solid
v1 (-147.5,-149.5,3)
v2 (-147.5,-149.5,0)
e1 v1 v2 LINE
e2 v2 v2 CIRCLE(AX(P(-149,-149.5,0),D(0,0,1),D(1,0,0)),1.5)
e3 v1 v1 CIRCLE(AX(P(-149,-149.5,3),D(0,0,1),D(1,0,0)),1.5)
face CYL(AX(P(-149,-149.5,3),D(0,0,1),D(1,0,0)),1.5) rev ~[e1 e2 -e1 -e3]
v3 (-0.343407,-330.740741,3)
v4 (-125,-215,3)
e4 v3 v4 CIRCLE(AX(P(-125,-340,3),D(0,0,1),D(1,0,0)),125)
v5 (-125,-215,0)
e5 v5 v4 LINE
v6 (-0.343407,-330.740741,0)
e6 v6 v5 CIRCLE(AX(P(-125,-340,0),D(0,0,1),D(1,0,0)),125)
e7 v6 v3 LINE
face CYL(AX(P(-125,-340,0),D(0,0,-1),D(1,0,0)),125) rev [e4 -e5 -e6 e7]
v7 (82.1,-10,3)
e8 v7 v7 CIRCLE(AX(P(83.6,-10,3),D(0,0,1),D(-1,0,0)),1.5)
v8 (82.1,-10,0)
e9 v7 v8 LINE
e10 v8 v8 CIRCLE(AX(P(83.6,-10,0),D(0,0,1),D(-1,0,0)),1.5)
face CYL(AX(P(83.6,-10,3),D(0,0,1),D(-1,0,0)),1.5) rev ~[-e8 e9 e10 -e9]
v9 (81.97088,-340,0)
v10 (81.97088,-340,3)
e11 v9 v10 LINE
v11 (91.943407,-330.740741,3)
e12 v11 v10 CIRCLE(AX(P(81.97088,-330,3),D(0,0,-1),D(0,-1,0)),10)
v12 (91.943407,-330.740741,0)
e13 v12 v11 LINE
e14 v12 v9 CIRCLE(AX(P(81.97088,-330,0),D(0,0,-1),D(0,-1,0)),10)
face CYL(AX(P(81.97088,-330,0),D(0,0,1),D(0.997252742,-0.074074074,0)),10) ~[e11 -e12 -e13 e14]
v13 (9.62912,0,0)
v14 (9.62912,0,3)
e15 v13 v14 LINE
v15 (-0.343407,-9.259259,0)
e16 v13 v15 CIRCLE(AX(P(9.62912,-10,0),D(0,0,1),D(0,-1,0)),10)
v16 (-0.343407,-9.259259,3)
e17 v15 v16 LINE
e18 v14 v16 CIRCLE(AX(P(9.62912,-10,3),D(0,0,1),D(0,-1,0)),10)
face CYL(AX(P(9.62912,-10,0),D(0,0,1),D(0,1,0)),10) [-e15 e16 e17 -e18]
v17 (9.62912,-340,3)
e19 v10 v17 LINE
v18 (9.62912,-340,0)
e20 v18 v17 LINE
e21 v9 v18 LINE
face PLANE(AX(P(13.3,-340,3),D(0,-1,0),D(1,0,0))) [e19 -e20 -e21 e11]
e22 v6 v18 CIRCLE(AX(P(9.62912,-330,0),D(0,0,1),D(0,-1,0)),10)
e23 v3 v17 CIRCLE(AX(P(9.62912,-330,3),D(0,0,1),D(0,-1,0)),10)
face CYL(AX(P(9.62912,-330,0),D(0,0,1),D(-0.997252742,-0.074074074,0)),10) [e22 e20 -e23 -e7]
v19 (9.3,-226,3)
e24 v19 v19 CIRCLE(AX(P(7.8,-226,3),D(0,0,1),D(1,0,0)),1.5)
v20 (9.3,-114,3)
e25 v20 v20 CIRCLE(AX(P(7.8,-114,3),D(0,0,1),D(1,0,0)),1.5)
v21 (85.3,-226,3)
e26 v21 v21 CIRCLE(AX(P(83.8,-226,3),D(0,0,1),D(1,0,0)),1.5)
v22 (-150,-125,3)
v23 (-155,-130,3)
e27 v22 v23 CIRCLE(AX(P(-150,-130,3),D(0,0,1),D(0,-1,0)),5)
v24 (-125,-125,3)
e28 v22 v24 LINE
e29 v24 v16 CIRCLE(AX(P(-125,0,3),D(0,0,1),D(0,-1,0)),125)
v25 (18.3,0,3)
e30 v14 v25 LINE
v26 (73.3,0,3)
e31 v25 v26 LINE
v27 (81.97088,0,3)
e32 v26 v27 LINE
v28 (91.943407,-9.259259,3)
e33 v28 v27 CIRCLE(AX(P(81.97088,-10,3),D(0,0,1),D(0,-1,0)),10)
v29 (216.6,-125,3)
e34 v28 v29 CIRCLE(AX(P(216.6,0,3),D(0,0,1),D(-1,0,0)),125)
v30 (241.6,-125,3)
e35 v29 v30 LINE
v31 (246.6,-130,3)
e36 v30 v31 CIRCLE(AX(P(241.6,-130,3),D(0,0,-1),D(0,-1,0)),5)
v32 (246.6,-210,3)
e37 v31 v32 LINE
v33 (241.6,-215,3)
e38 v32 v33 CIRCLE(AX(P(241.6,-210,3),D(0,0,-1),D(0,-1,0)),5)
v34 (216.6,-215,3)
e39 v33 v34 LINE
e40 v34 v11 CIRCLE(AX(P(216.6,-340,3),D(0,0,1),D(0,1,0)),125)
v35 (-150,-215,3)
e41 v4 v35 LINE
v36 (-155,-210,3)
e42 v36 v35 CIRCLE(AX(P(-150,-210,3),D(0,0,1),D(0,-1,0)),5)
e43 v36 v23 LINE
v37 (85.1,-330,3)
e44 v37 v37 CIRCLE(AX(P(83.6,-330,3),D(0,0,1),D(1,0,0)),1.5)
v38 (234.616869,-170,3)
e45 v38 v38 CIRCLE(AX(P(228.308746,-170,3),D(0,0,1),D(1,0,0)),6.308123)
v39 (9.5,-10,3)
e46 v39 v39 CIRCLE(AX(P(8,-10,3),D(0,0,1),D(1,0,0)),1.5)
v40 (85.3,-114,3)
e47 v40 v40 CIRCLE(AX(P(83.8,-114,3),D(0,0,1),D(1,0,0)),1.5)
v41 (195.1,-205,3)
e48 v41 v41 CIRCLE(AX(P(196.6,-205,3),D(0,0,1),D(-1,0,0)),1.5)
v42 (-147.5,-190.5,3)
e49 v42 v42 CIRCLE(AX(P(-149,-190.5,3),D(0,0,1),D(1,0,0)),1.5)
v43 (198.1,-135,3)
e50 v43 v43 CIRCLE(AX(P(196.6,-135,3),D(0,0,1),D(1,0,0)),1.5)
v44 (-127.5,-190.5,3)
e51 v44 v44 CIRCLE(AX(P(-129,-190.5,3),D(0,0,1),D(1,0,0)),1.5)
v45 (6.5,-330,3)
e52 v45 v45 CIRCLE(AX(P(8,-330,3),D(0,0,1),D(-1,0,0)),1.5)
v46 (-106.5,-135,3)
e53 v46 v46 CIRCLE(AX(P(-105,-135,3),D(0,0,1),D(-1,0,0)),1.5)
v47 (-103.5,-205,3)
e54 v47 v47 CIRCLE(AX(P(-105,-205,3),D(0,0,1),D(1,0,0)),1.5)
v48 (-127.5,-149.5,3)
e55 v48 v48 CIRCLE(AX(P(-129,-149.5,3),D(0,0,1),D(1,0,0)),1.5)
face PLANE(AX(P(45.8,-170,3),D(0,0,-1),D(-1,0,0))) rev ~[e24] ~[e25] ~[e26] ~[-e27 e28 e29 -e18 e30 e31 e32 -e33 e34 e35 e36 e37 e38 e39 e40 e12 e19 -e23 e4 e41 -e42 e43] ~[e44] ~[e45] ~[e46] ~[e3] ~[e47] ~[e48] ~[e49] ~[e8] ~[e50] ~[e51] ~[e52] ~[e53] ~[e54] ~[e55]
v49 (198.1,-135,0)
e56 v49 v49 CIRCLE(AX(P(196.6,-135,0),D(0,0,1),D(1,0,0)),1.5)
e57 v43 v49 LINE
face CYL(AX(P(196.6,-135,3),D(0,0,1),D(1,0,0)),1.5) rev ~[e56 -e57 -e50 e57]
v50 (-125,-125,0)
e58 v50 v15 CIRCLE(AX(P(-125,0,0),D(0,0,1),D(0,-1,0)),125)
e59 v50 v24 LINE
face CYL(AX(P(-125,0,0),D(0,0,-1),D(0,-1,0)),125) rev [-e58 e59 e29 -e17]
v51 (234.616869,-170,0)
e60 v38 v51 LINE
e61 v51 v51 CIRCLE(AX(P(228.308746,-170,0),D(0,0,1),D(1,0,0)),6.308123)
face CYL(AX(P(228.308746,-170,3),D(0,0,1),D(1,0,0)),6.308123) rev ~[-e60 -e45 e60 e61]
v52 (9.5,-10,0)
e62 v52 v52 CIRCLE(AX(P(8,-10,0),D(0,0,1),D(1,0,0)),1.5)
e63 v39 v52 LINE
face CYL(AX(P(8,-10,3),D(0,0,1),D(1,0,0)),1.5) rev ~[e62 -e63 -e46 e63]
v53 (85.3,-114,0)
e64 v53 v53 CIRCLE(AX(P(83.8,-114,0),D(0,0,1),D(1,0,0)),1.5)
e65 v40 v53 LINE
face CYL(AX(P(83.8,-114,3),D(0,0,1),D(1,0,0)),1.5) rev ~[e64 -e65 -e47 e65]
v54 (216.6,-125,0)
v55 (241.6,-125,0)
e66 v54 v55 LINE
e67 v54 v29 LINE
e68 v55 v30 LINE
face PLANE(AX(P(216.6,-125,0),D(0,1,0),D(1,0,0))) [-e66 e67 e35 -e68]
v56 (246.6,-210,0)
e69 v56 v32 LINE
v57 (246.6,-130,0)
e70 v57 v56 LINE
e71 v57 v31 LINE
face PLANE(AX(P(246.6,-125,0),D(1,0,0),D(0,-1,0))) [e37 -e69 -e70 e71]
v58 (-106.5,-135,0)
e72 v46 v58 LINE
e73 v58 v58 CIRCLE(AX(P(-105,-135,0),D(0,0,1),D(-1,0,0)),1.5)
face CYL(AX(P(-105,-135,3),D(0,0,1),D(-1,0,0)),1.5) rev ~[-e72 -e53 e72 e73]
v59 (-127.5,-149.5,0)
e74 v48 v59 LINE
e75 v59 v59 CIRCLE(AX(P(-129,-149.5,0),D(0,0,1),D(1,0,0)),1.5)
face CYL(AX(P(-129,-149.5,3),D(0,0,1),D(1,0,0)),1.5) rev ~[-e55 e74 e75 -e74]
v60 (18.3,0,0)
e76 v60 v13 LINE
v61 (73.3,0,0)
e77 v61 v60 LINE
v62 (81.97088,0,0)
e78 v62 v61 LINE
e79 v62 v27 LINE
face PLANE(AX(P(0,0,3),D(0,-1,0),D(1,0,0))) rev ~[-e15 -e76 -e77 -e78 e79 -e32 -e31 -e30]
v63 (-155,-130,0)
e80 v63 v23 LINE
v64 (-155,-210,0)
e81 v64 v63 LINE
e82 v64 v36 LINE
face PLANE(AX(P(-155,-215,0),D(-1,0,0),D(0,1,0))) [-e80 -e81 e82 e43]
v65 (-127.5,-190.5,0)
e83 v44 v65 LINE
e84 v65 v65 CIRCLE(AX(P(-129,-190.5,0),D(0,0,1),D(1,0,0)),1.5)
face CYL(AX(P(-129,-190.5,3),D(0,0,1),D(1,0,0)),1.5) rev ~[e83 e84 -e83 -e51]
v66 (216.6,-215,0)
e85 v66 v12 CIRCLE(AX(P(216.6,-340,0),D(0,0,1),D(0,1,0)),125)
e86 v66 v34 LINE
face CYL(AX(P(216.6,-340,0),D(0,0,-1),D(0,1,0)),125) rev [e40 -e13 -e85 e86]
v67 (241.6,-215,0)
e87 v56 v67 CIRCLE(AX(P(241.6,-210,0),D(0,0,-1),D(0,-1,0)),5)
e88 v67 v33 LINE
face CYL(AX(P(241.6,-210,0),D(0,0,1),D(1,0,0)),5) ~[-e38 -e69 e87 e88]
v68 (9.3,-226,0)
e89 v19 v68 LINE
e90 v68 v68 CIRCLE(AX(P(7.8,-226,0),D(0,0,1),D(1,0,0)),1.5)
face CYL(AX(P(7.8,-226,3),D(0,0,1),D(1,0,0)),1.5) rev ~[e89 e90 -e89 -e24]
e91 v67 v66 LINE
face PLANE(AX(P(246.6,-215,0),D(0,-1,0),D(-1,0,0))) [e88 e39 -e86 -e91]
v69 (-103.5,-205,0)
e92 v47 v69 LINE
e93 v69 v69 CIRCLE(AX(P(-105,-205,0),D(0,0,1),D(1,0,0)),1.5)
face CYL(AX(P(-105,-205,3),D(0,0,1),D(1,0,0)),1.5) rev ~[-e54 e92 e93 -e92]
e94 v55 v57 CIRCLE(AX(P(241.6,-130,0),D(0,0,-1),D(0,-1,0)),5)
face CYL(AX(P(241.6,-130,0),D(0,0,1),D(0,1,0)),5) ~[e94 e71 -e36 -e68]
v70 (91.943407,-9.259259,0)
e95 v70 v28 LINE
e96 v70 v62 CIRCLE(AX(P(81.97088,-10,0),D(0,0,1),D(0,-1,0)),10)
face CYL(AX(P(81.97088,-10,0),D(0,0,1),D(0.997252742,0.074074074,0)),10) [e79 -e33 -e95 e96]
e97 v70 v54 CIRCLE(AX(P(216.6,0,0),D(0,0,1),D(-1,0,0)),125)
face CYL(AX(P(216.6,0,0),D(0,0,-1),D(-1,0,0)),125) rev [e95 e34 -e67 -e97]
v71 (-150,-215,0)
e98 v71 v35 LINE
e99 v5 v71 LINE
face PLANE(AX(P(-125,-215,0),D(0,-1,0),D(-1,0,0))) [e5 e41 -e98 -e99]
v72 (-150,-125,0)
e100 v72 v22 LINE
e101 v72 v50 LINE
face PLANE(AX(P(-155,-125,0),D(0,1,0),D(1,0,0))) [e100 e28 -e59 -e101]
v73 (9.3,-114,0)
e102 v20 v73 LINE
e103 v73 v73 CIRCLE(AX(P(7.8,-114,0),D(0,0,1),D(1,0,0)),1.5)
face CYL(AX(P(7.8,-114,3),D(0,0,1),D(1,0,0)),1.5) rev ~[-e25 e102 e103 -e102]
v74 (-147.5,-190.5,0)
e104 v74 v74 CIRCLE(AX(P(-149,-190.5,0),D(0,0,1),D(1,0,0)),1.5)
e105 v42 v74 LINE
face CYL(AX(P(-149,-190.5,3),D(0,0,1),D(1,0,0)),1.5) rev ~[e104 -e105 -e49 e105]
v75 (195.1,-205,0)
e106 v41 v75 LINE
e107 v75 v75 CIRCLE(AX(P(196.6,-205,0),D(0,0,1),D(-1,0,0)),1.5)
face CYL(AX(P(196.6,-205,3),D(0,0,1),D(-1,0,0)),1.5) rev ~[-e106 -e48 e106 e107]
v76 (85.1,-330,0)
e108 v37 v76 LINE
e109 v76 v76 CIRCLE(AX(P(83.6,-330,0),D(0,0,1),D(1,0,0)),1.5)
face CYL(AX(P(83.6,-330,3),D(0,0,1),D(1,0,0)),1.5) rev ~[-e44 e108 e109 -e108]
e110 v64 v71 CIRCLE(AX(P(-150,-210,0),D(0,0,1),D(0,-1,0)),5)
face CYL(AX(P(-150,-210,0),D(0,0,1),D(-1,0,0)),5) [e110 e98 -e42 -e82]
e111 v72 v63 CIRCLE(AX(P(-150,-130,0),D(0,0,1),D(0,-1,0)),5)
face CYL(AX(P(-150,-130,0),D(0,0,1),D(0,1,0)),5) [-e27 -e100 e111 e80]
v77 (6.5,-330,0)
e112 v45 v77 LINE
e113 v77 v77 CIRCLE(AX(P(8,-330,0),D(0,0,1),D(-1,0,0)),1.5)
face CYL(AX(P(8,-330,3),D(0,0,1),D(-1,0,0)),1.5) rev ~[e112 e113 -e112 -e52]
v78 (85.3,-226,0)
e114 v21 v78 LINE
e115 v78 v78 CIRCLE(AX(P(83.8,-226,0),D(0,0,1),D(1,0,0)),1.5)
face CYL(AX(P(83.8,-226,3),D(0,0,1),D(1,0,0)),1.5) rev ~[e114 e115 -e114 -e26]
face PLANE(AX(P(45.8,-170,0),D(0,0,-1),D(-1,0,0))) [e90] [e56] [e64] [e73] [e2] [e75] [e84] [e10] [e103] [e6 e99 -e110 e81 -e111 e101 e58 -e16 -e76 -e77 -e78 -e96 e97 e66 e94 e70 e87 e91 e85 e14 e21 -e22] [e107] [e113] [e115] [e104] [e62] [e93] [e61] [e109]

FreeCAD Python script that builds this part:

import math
import FreeCAD as App
import Part
import Sketcher
Q = App.Units.Quantity


def edges_at(feature, points):
    """Names of the edges that pass closest to the given points."""
    edges = feature.Shape.Edges
    near = lambda p: min(range(len(edges)), key=lambda i: edges[i].distToShape(Part.Vertex(*p))[0])
    return sorted({f"Edge{near(p) + 1}" for p in points})

doc = App.newDocument("Part")
body = doc.addObject("PartDesign::Body", "Body")

# Sketch on XY plane
sketch1 = body.newObject("Sketcher::SketchObject", "Sketch")
sketch1.AttachmentSupport = (doc.getObject("XY_Plane"), [""])
sketch1.MapMode = "FlatFace"
sketch1.addGeometry(Part.LineSegment(App.Vector(0, 55, 0), App.Vector(0, 25, 0)), False)
sketch1.addGeometry(Part.LineSegment(App.Vector(0, 25, 0), App.Vector(-97, 25, 0)), False)
sketch1.addGeometry(Part.LineSegment(App.Vector(-97, 25, 0), App.Vector(-97, 0, 0)), False)
sketch1.addGeometry(Part.LineSegment(App.Vector(-97, 0, 0), App.Vector(0, 0, 0)), False)
sketch1.addGeometry(Part.ArcOfCircle(Part.Circle(App.Vector(-125, 0, 0), App.Vector(0, 0, 1), 125), math.radians(-90), math.radians(0)), False)
sketch1.addGeometry(Part.LineSegment(App.Vector(-125, -125, 0), App.Vector(-155, -125, 0)), False)
sketch1.addGeometry(Part.LineSegment(App.Vector(-155, -125, 0), App.Vector(-155, -215, 0)), False)
sketch1.addGeometry(Part.LineSegment(App.Vector(-155, -215, 0), App.Vector(-125, -215, 0)), False)
sketch1.addGeometry(Part.ArcOfCircle(Part.Circle(App.Vector(-125, -340, 0), App.Vector(0, 0, 1), 125), math.radians(0), math.radians(90)), False)
sketch1.addGeometry(Part.LineSegment(App.Vector(0, -340, 0), App.Vector(-97, -340, 0)), False)
sketch1.addGeometry(Part.LineSegment(App.Vector(-97, -340, 0), App.Vector(-97, -365, 0)), False)
sketch1.addGeometry(Part.LineSegment(App.Vector(-97, -365, 0), App.Vector(0, -365, 0)), False)
sketch1.addGeometry(Part.LineSegment(App.Vector(0, -365, 0), App.Vector(0, -395, 0)), False)
sketch1.addGeometry(Part.LineSegment(App.Vector(0, -395, 0), App.Vector(92, -395, 0)), False)
sketch1.addGeometry(Part.LineSegment(App.Vector(92, -395, 0), App.Vector(92, -365, 0)), False)
sketch1.addGeometry(Part.LineSegment(App.Vector(92, -365, 0), App.Vector(188, -365, 0)), False)
sketch1.addGeometry(Part.LineSegment(App.Vector(188, -365, 0), App.Vector(188, -340, 0)), False)
sketch1.addGeometry(Part.LineSegment(App.Vector(188, -340, 0), App.Vector(92, -340, 0)), False)
sketch1.addGeometry(Part.ArcOfCircle(Part.Circle(App.Vector(217, -340, 0), App.Vector(0, 0, 1), 125), math.radians(90), math.radians(180)), False)
sketch1.addGeometry(Part.LineSegment(App.Vector(217, -215, 0), App.Vector(247, -215, 0)), False)
sketch1.addGeometry(Part.LineSegment(App.Vector(247, -215, 0), App.Vector(247, -125, 0)), False)
sketch1.addGeometry(Part.LineSegment(App.Vector(247, -125, 0), App.Vector(217, -125, 0)), False)
sketch1.addGeometry(Part.ArcOfCircle(Part.Circle(App.Vector(217, 0, 0), App.Vector(0, 0, 1), 125), math.radians(-180), math.radians(-90)), False)
sketch1.addGeometry(Part.LineSegment(App.Vector(92, 0, 0), App.Vector(188, 0, 0)), False)
sketch1.addGeometry(Part.LineSegment(App.Vector(188, 0, 0), App.Vector(188, 25, 0)), False)
sketch1.addGeometry(Part.LineSegment(App.Vector(188, 25, 0), App.Vector(92, 25, 0)), False)
sketch1.addGeometry(Part.LineSegment(App.Vector(92, 25, 0), App.Vector(92, 55, 0)), False)
sketch1.addGeometry(Part.LineSegment(App.Vector(92, 55, 0), App.Vector(0, 55, 0)), False)
sketch1.addConstraint(Sketcher.Constraint("Coincident", 0, 2, 1, 1))
sketch1.addConstraint(Sketcher.Constraint("Coincident", 1, 2, 2, 1))
sketch1.addConstraint(Sketcher.Constraint("Coincident", 2, 2, 3, 1))
sketch1.addConstraint(Sketcher.Constraint("Coincident", 3, 2, 4, 2))
sketch1.addConstraint(Sketcher.Constraint("Tangent", 4, 1, 5, 1))
sketch1.addConstraint(Sketcher.Constraint("Coincident", 5, 2, 6, 1))
sketch1.addConstraint(Sketcher.Constraint("Coincident", 6, 2, 7, 1))
sketch1.addConstraint(Sketcher.Constraint("Tangent", 7, 2, 8, 2))
sketch1.addConstraint(Sketcher.Constraint("Coincident", 8, 1, 9, 1))
sketch1.addConstraint(Sketcher.Constraint("Coincident", 9, 2, 10, 1))
sketch1.addConstraint(Sketcher.Constraint("Coincident", 10, 2, 11, 1))
sketch1.addConstraint(Sketcher.Constraint("Coincident", 11, 2, 12, 1))
sketch1.addConstraint(Sketcher.Constraint("Coincident", 12, 2, 13, 1))
sketch1.addConstraint(Sketcher.Constraint("Coincident", 13, 2, 14, 1))
sketch1.addConstraint(Sketcher.Constraint("Coincident", 14, 2, 15, 1))
sketch1.addConstraint(Sketcher.Constraint("Coincident", 15, 2, 16, 1))
sketch1.addConstraint(Sketcher.Constraint("Coincident", 16, 2, 17, 1))
sketch1.addConstraint(Sketcher.Constraint("Coincident", 17, 2, 18, 2))
sketch1.addConstraint(Sketcher.Constraint("Tangent", 18, 1, 19, 1))
sketch1.addConstraint(Sketcher.Constraint("Coincident", 19, 2, 20, 1))
sketch1.addConstraint(Sketcher.Constraint("Coincident", 20, 2, 21, 1))
sketch1.addConstraint(Sketcher.Constraint("Tangent", 21, 2, 22, 2))
sketch1.addConstraint(Sketcher.Constraint("Coincident", 22, 1, 23, 1))
sketch1.addConstraint(Sketcher.Constraint("Coincident", 23, 2, 24, 1))
sketch1.addConstraint(Sketcher.Constraint("Coincident", 24, 2, 25, 1))
sketch1.addConstraint(Sketcher.Constraint("Coincident", 25, 2, 26, 1))
sketch1.addConstraint(Sketcher.Constraint("Coincident", 26, 2, 27, 1))
sketch1.addConstraint(Sketcher.Constraint("Coincident", 27, 2, 0, 1))
sketch1.addConstraint(Sketcher.Constraint("Vertical", 0))
sketch1.addConstraint(Sketcher.Constraint("Horizontal", 1))
sketch1.addConstraint(Sketcher.Constraint("Vertical", 2))
sketch1.addConstraint(Sketcher.Constraint("Horizontal", 3))
sketch1.addConstraint(Sketcher.Constraint("Horizontal", 5))
sketch1.addConstraint(Sketcher.Constraint("Vertical", 6))
sketch1.addConstraint(Sketcher.Constraint("Horizontal", 7))
sketch1.addConstraint(Sketcher.Constraint("Horizontal", 9))
sketch1.addConstraint(Sketcher.Constraint("Vertical", 10))
sketch1.addConstraint(Sketcher.Constraint("Horizontal", 11))
sketch1.addConstraint(Sketcher.Constraint("Vertical", 12))
sketch1.addConstraint(Sketcher.Constraint("Horizontal", 13))
sketch1.addConstraint(Sketcher.Constraint("Vertical", 14))
sketch1.addConstraint(Sketcher.Constraint("Horizontal", 15))
sketch1.addConstraint(Sketcher.Constraint("Vertical", 16))
sketch1.addConstraint(Sketcher.Constraint("Horizontal", 17))
sketch1.addConstraint(Sketcher.Constraint("Horizontal", 19))
sketch1.addConstraint(Sketcher.Constraint("Vertical", 20))
sketch1.addConstraint(Sketcher.Constraint("Horizontal", 21))
sketch1.addConstraint(Sketcher.Constraint("Horizontal", 23))
sketch1.addConstraint(Sketcher.Constraint("Vertical", 24))
sketch1.addConstraint(Sketcher.Constraint("Horizontal", 25))
sketch1.addConstraint(Sketcher.Constraint("Vertical", 26))
sketch1.addConstraint(Sketcher.Constraint("Horizontal", 27))
sketch1.addConstraint(Sketcher.Constraint("Coincident", 3, 2, -1, 1))
sketch1.addConstraint(Sketcher.Constraint("Equal", 4, 8))
sketch1.addConstraint(Sketcher.Constraint("Equal", 8, 18))
sketch1.addConstraint(Sketcher.Constraint("Equal", 18, 22))
sketch1.addConstraint(Sketcher.Constraint("PointOnObject", 4, 3, -1))
sketch1.addConstraint(Sketcher.Constraint("PointOnObject", 22, 3, -1))
sketch1.addConstraint(Sketcher.Constraint("PointOnObject", 0, 2, -2))
sketch1.addConstraint(Sketcher.Constraint("PointOnObject", 8, 1, -2))
sketch1.addConstraint(Sketcher.Constraint("PointOnObject", 11, 2, -2))
sketch1.addConstraint(Sketcher.Constraint("PointOnObject", 22, 1, -1))
sketch1.addConstraint(Sketcher.Constraint("Horizontal", 8, 3, 18, 3))
sketch1.addConstraint(Sketcher.Constraint("Horizontal", 18, 3, 8, 1))
sketch1.addConstraint(Sketcher.Constraint("Horizontal", 11, 2, 14, 2))
sketch1.addConstraint(Sketcher.Constraint("Horizontal", 9, 2, 16, 2))
sketch1.addConstraint(Sketcher.Constraint("Horizontal", 1, 2, 24, 2))
sketch1.addConstraint(Sketcher.Constraint("Vertical", 18, 3, 22, 3))
sketch1.addConstraint(Sketcher.Constraint("Vertical", 2, 2, 9, 2))
sketch1.addConstraint(Sketcher.Constraint("Vertical", 14, 2, 17, 2))
sketch1.addConstraint(Sketcher.Constraint("Vertical", 16, 2, 23, 2))
sketch1.addConstraint(Sketcher.Constraint("Vertical", 22, 1, 25, 2))
sketch1.addConstraint(Sketcher.Constraint("Equal", 11, 15))
sketch1.addConstraint(Sketcher.Constraint("Equal", 7, 19))
sketch1.addConstraint(Sketcher.Constraint("Equal", 21, 0))
sketch1.addConstraint(Sketcher.Constraint("Equal", 2, 10))
sketch1.addConstraint(Sketcher.Constraint("Equal", 0, 12))
sketch1.addConstraint(Sketcher.Constraint("Radius", 4, Q("125 mm")))
sketch1.addConstraint(Sketcher.Constraint("DistanceX", 5, 2, 5, 1, Q("30 mm")))
sketch1.addConstraint(Sketcher.Constraint("DistanceY", 2, 2, 2, 1, Q("25 mm")))
sketch1.addConstraint(Sketcher.Constraint("DistanceY", 6, 2, 6, 1, Q("90 mm")))
sketch1.addConstraint(Sketcher.Constraint("DistanceX", 13, 1, 13, 2, Q("91.6 mm")))
sketch1.addConstraint(Sketcher.Constraint("DistanceX", 1, 2, 1, 1, Q("96.583124 mm")))
pad1 = body.newObject("PartDesign::Pad", "Pad")
pad1.Profile = sketch1
pad1.Length = 3

# Sketch on XY plane
sketch2 = body.newObject("Sketcher::SketchObject", "Sketch001")
sketch2.AttachmentSupport = (doc.getObject("XY_Plane"), [""])
sketch2.MapMode = "FlatFace"
sketch2.AttachmentOffset = App.Placement(App.Vector(0, 0, 3), App.Rotation())
sketch2.addGeometry(Part.Circle(App.Vector(-90.6, 20, 0), App.Vector(0, 0, 1), 1.5), False)
sketch2.addGeometry(Part.Circle(App.Vector(-90.6, 5, 0), App.Vector(0, 0, 1), 1.5), False)
sketch2.addGeometry(Part.Circle(App.Vector(-90.6, -345, 0), App.Vector(0, 0, 1), 1.5), False)
sketch2.addGeometry(Part.Circle(App.Vector(-90.6, -360, 0), App.Vector(0, 0, 1), 1.5), False)
sketch2.addGeometry(Part.Circle(App.Vector(182.2, -360, 0), App.Vector(0, 0, 1), 1.5), False)
sketch2.addGeometry(Part.Circle(App.Vector(182.2, -345, 0), App.Vector(0, 0, 1), 1.5), False)
sketch2.addGeometry(Part.Circle(App.Vector(182.2, 5, 0), App.Vector(0, 0, 1), 1.5), False)
sketch2.addGeometry(Part.Circle(App.Vector(182.2, 20, 0), App.Vector(0, 0, 1), 1.5), False)
sketch2.addConstraint(Sketcher.Constraint("Equal", 0, 1))
sketch2.addConstraint(Sketcher.Constraint("Equal", 1, 2))
sketch2.addConstraint(Sketcher.Constraint("Equal", 2, 3))
sketch2.addConstraint(Sketcher.Constraint("Equal", 3, 4))
sketch2.addConstraint(Sketcher.Constraint("Equal", 4, 5))
sketch2.addConstraint(Sketcher.Constraint("Equal", 5, 6))
sketch2.addConstraint(Sketcher.Constraint("Equal", 6, 7))
sketch2.addConstraint(Sketcher.Constraint("Horizontal", 3, 3, 4, 3))
sketch2.addConstraint(Sketcher.Constraint("Horizontal", 2, 3, 5, 3))
sketch2.addConstraint(Sketcher.Constraint("Horizontal", 1, 3, 6, 3))
sketch2.addConstraint(Sketcher.Constraint("Horizontal", 0, 3, 7, 3))
sketch2.addConstraint(Sketcher.Constraint("Vertical", 0, 3, 1, 3))
sketch2.addConstraint(Sketcher.Constraint("Vertical", 1, 3, 2, 3))
sketch2.addConstraint(Sketcher.Constraint("Vertical", 2, 3, 3, 3))
sketch2.addConstraint(Sketcher.Constraint("Vertical", 4, 3, 5, 3))
sketch2.addConstraint(Sketcher.Constraint("Vertical", 5, 3, 6, 3))
sketch2.addConstraint(Sketcher.Constraint("Vertical", 6, 3, 7, 3))
sketch2.addConstraint(Sketcher.Constraint("Diameter", 0, Q("3 mm")))
sketch2.addConstraint(Sketcher.Constraint("DistanceY", -1, 1, 0, 3, Q("20 mm")))
sketch2.addConstraint(Sketcher.Constraint("DistanceY", -1, 1, 1, 3, Q("5 mm")))
sketch2.addConstraint(Sketcher.Constraint("DistanceY", 2, 3, -1, 1, Q("345 mm")))
sketch2.addConstraint(Sketcher.Constraint("DistanceY", 3, 3, -1, 1, Q("360 mm")))
sketch2.addConstraint(Sketcher.Constraint("DistanceX", 0, 3, -1, 1, Q("90.583124 mm")))
sketch2.addConstraint(Sketcher.Constraint("DistanceX", -1, 1, 4, 3, Q("182.183124 mm")))
pocket1 = body.newObject("PartDesign::Pocket", "Pocket")
pocket1.Profile = sketch2
pocket1.Length = 10

# Sketch on XY plane
sketch3 = body.newObject("Sketcher::SketchObject", "Sketch002")
sketch3.AttachmentSupport = (doc.getObject("XY_Plane"), [""])
sketch3.MapMode = "FlatFace"
sketch3.AttachmentOffset = App.Placement(App.Vector(0, 0, 3), App.Rotation())
sketch3.addGeometry(Part.Circle(App.Vector(8, -10, 0), App.Vector(0, 0, 1), 1.5), False)
sketch3.addGeometry(Part.Circle(App.Vector(83.6, -10, 0), App.Vector(0, 0, 1), 1.5), False)
sketch3.addGeometry(Part.Circle(App.Vector(83.6, -330, 0), App.Vector(0, 0, 1), 1.5), False)
sketch3.addGeometry(Part.Circle(App.Vector(8, -330, 0), App.Vector(0, 0, 1), 1.5), False)
sketch3.addGeometry(Part.Circle(App.Vector(196.6, -135, 0), App.Vector(0, 0, 1), 1.5), False)
sketch3.addGeometry(Part.Circle(App.Vector(196.6, -205, 0), App.Vector(0, 0, 1), 1.5), False)
sketch3.addGeometry(Part.Circle(App.Vector(-105, -205, 0), App.Vector(0, 0, 1), 1.5), False)
sketch3.addGeometry(Part.Circle(App.Vector(-105, -135, 0), App.Vector(0, 0, 1), 1.5), False)
sketch3.addConstraint(Sketcher.Constraint("Equal", 0, 1))
sketch3.addConstraint(Sketcher.Constraint("Equal", 1, 2))
sketch3.addConstraint(Sketcher.Constraint("Equal", 2, 3))
sketch3.addConstraint(Sketcher.Constraint("Equal", 3, 4))
sketch3.addConstraint(Sketcher.Constraint("Equal", 4, 5))
sketch3.addConstraint(Sketcher.Constraint("Equal", 5, 6))
sketch3.addConstraint(Sketcher.Constraint("Equal", 6, 7))
sketch3.addConstraint(Sketcher.Constraint("Horizontal", 0, 3, 1, 3))
sketch3.addConstraint(Sketcher.Constraint("Horizontal", 2, 3, 3, 3))
sketch3.addConstraint(Sketcher.Constraint("Horizontal", 5, 3, 6, 3))
sketch3.addConstraint(Sketcher.Constraint("Horizontal", 4, 3, 7, 3))
sketch3.addConstraint(Sketcher.Constraint("Vertical", 1, 3, 2, 3))
sketch3.addConstraint(Sketcher.Constraint("Vertical", 0, 3, 3, 3))
sketch3.addConstraint(Sketcher.Constraint("Vertical", 4, 3, 5, 3))
sketch3.addConstraint(Sketcher.Constraint("Vertical", 6, 3, 7, 3))
sketch3.addConstraint(Sketcher.Constraint("Diameter", 0, Q("3 mm")))
sketch3.addConstraint(Sketcher.Constraint("DistanceX", -1, 1, 0, 3, Q("8 mm")))
sketch3.addConstraint(Sketcher.Constraint("DistanceY", 0, 3, -1, 1, Q("10 mm")))
sketch3.addConstraint(Sketcher.Constraint("DistanceY", 2, 3, -1, 1, Q("330 mm")))
sketch3.addConstraint(Sketcher.Constraint("DistanceY", 4, 3, -1, 1, Q("135 mm")))
sketch3.addConstraint(Sketcher.Constraint("DistanceY", 5, 3, -1, 1, Q("205 mm")))
sketch3.addConstraint(Sketcher.Constraint("DistanceX", 6, 3, -1, 1, Q("105 mm")))
sketch3.addConstraint(Sketcher.Constraint("DistanceX", 1, 3, 4, 3, Q("113 mm")))
sketch3.addConstraint(Sketcher.Constraint("DistanceX", -1, 1, 1, 3, Q("83.6 mm")))
pocket2 = body.newObject("PartDesign::Pocket", "Pocket001")
pocket2.Profile = sketch3
pocket2.Length = 10
doc.recompute()

fillet = body.newObject("PartDesign::Fillet", "Fillet")
fillet.Base = (pocket2, edges_at(pocket2, [
    (-96.583, 0, 1.5),
    (-96.583, 25, 1.5),
    (0, 55, 1.5),
    (91.6, 55, 1.5),
    (188.183, 25, 1.5),
    (188.183, 0, 1.5),
    (246.6, -125, 1.5),
    (246.6, -215, 1.5),
    (188.183, -340, 1.5),
    (188.183, -365, 1.5),
    (91.6, -395, 1.5),
    (0, -395, 1.5),
    (-96.583, -365, 1.5),
    (-96.583, -340, 1.5),
    (-155, -215, 1.5),
    (-155, -125, 1.5),
]))
fillet.Radius = 5

# Sketch on XY plane
sketch4 = body.newObject("Sketcher::SketchObject", "Sketch003")
sketch4.AttachmentSupport = (doc.getObject("XY_Plane"), [""])
sketch4.MapMode = "FlatFace"
sketch4.AttachmentOffset = App.Placement(App.Vector(0, 0, 3), App.Rotation())
sketch4.addGeometry(Part.LineSegment(App.Vector(-117, 25, 0), App.Vector(-117, 0, 0)), False)
sketch4.addGeometry(Part.LineSegment(App.Vector(-117, 0, 0), App.Vector(0, 0, 0)), False)
sketch4.addGeometry(Part.LineSegment(App.Vector(0, 0, 0), App.Vector(0, 25, 0)), False)
sketch4.addGeometry(Part.LineSegment(App.Vector(0, 25, 0), App.Vector(-117, 25, 0)), False)
sketch4.addGeometry(Part.LineSegment(App.Vector(92, 25, 0), App.Vector(92, 0, 0)), False)
sketch4.addGeometry(Part.LineSegment(App.Vector(92, 0, 0), App.Vector(216, 0, 0)), False)
sketch4.addGeometry(Part.LineSegment(App.Vector(216, 0, 0), App.Vector(216, 25, 0)), False)
sketch4.addGeometry(Part.LineSegment(App.Vector(216, 25, 0), App.Vector(92, 25, 0)), False)
sketch4.addGeometry(Part.LineSegment(App.Vector(-98, -340, 0), App.Vector(-98, -365, 0)), False)
sketch4.addGeometry(Part.LineSegment(App.Vector(-98, -365, 0), App.Vector(0, -365, 0)), False)
sketch4.addGeometry(Part.LineSegment(App.Vector(0, -365, 0), App.Vector(0, -340, 0)), False)
sketch4.addGeometry(Part.LineSegment(App.Vector(0, -340, 0), App.Vector(-98, -340, 0)), False)
sketch4.addGeometry(Part.LineSegment(App.Vector(92, -340, 0), App.Vector(92, -365, 0)), False)
sketch4.addGeometry(Part.LineSegment(App.Vector(92, -365, 0), App.Vector(209, -365, 0)), False)
sketch4.addGeometry(Part.LineSegment(App.Vector(209, -365, 0), App.Vector(209, -340, 0)), False)
sketch4.addGeometry(Part.LineSegment(App.Vector(209, -340, 0), App.Vector(92, -340, 0)), False)
sketch4.addConstraint(Sketcher.Constraint("Coincident", 0, 2, 1, 1))
sketch4.addConstraint(Sketcher.Constraint("Coincident", 1, 2, 2, 1))
sketch4.addConstraint(Sketcher.Constraint("Coincident", 2, 2, 3, 1))
sketch4.addConstraint(Sketcher.Constraint("Coincident", 3, 2, 0, 1))
sketch4.addConstraint(Sketcher.Constraint("Coincident", 4, 2, 5, 1))
sketch4.addConstraint(Sketcher.Constraint("Coincident", 5, 2, 6, 1))
sketch4.addConstraint(Sketcher.Constraint("Coincident", 6, 2, 7, 1))
sketch4.addConstraint(Sketcher.Constraint("Coincident", 7, 2, 4, 1))
sketch4.addConstraint(Sketcher.Constraint("Coincident", 8, 2, 9, 1))
sketch4.addConstraint(Sketcher.Constraint("Coincident", 9, 2, 10, 1))
sketch4.addConstraint(Sketcher.Constraint("Coincident", 10, 2, 11, 1))
sketch4.addConstraint(Sketcher.Constraint("Coincident", 11, 2, 8, 1))
sketch4.addConstraint(Sketcher.Constraint("Coincident", 12, 2, 13, 1))
sketch4.addConstraint(Sketcher.Constraint("Coincident", 13, 2, 14, 1))
sketch4.addConstraint(Sketcher.Constraint("Coincident", 14, 2, 15, 1))
sketch4.addConstraint(Sketcher.Constraint("Coincident", 15, 2, 12, 1))
sketch4.addConstraint(Sketcher.Constraint("Vertical", 0))
sketch4.addConstraint(Sketcher.Constraint("Horizontal", 1))
sketch4.addConstraint(Sketcher.Constraint("Vertical", 2))
sketch4.addConstraint(Sketcher.Constraint("Horizontal", 3))
sketch4.addConstraint(Sketcher.Constraint("Vertical", 4))
sketch4.addConstraint(Sketcher.Constraint("Horizontal", 5))
sketch4.addConstraint(Sketcher.Constraint("Vertical", 6))
sketch4.addConstraint(Sketcher.Constraint("Horizontal", 7))
sketch4.addConstraint(Sketcher.Constraint("Vertical", 8))
sketch4.addConstraint(Sketcher.Constraint("Horizontal", 9))
sketch4.addConstraint(Sketcher.Constraint("Vertical", 10))
sketch4.addConstraint(Sketcher.Constraint("Horizontal", 11))
sketch4.addConstraint(Sketcher.Constraint("Vertical", 12))
sketch4.addConstraint(Sketcher.Constraint("Horizontal", 13))
sketch4.addConstraint(Sketcher.Constraint("Vertical", 14))
sketch4.addConstraint(Sketcher.Constraint("Horizontal", 15))
sketch4.addConstraint(Sketcher.Constraint("Coincident", 1, 2, -1, 1))
sketch4.addConstraint(Sketcher.Constraint("PointOnObject", 4, 2, -1))
sketch4.addConstraint(Sketcher.Constraint("PointOnObject", 9, 2, -2))
sketch4.addConstraint(Sketcher.Constraint("Horizontal", 3, 2, 6, 2))
sketch4.addConstraint(Sketcher.Constraint("Horizontal", 9, 2, 12, 2))
sketch4.addConstraint(Sketcher.Constraint("Horizontal", 11, 2, 14, 2))
sketch4.addConstraint(Sketcher.Constraint("Vertical", 7, 2, 12, 2))
sketch4.addConstraint(Sketcher.Constraint("Equal", 6, 8))
sketch4.addConstraint(Sketcher.Constraint("DistanceY", 0, 2, 0, 1, Q("25 mm")))
sketch4.addConstraint(Sketcher.Constraint("DistanceY", 8, 2, -1, 1, Q("365 mm")))
sketch4.addConstraint(Sketcher.Constraint("DistanceX", -1, 1, 4, 2, Q("91.6 mm")))
sketch4.addConstraint(Sketcher.Constraint("DistanceX", 5, 1, 5, 2, Q("124.07359 mm")))
sketch4.addConstraint(Sketcher.Constraint("DistanceX", 9, 1, 9, 2, Q("98.220869 mm")))
sketch4.addConstraint(Sketcher.Constraint("DistanceX", 13, 1, 13, 2, Q("117.634329 mm")))
sketch4.addConstraint(Sketcher.Constraint("DistanceX", 1, 1, 1, 2, Q("116.747997 mm")))
pocket3 = body.newObject("PartDesign::Pocket", "Pocket002")
pocket3.Profile = sketch4
pocket3.Length = 10

# Sketch on XY plane
sketch5 = body.newObject("Sketcher::SketchObject", "Sketch004")
sketch5.AttachmentSupport = (doc.getObject("XY_Plane"), [""])
sketch5.MapMode = "FlatFace"
sketch5.AttachmentOffset = App.Placement(App.Vector(0, 0, 3), App.Rotation())
sketch5.addGeometry(Part.LineSegment(App.Vector(13, 110, 0), App.Vector(13, 0, 0)), False)
sketch5.addGeometry(Part.LineSegment(App.Vector(13, 0, 0), App.Vector(78, 0, 0)), False)
sketch5.addGeometry(Part.LineSegment(App.Vector(78, 0, 0), App.Vector(78, 110, 0)), False)
sketch5.addGeometry(Part.LineSegment(App.Vector(78, 110, 0), App.Vector(13, 110, 0)), False)
sketch5.addGeometry(Part.LineSegment(App.Vector(13, -340, 0), App.Vector(13, -450, 0)), False)
sketch5.addGeometry(Part.LineSegment(App.Vector(13, -450, 0), App.Vector(78, -450, 0)), False)
sketch5.addGeometry(Part.LineSegment(App.Vector(78, -450, 0), App.Vector(78, -340, 0)), False)
sketch5.addGeometry(Part.LineSegment(App.Vector(78, -340, 0), App.Vector(13, -340, 0)), False)
sketch5.addConstraint(Sketcher.Constraint("Coincident", 0, 2, 1, 1))
sketch5.addConstraint(Sketcher.Constraint("Coincident", 1, 2, 2, 1))
sketch5.addConstraint(Sketcher.Constraint("Coincident", 2, 2, 3, 1))
sketch5.addConstraint(Sketcher.Constraint("Coincident", 3, 2, 0, 1))
sketch5.addConstraint(Sketcher.Constraint("Coincident", 4, 2, 5, 1))
sketch5.addConstraint(Sketcher.Constraint("Coincident", 5, 2, 6, 1))
sketch5.addConstraint(Sketcher.Constraint("Coincident", 6, 2, 7, 1))
sketch5.addConstraint(Sketcher.Constraint("Coincident", 7, 2, 4, 1))
sketch5.addConstraint(Sketcher.Constraint("Vertical", 0))
sketch5.addConstraint(Sketcher.Constraint("Horizontal", 1))
sketch5.addConstraint(Sketcher.Constraint("Vertical", 2))
sketch5.addConstraint(Sketcher.Constraint("Horizontal", 3))
sketch5.addConstraint(Sketcher.Constraint("Vertical", 4))
sketch5.addConstraint(Sketcher.Constraint("Horizontal", 5))
sketch5.addConstraint(Sketcher.Constraint("Vertical", 6))
sketch5.addConstraint(Sketcher.Constraint("Horizontal", 7))
sketch5.addConstraint(Sketcher.Constraint("PointOnObject", 0, 2, -1))
sketch5.addConstraint(Sketcher.Constraint("Vertical", 3, 2, 4, 2))
sketch5.addConstraint(Sketcher.Constraint("Vertical", 2, 2, 5, 2))
sketch5.addConstraint(Sketcher.Constraint("Equal", 2, 4))
sketch5.addConstraint(Sketcher.Constraint("DistanceX", 1, 1, 1, 2, Q("65 mm")))
sketch5.addConstraint(Sketcher.Constraint("DistanceY", 0, 2, 0, 1, Q("110 mm")))
sketch5.addConstraint(Sketcher.Constraint("DistanceY", 4, 2, -1, 1, Q("450 mm")))
sketch5.addConstraint(Sketcher.Constraint("DistanceX", -1, 1, 0, 2, Q("13.3 mm")))
pocket4 = body.newObject("PartDesign::Pocket", "Pocket003")
pocket4.Profile = sketch5
pocket4.Length = 10
doc.recompute()

fillet2 = body.newObject("PartDesign::Fillet", "Fillet001")
fillet2.Base = (pocket4, edges_at(pocket4, [
    (13.3, 55, 1.5),
    (78.3, 55, 1.5),
    (78.3, -395, 1.5),
    (13.3, -395, 1.5),
]))
fillet2.Radius = 5
doc.recompute()

fillet3 = body.newObject("PartDesign::Fillet", "Fillet002")
fillet3.Base = (fillet2, edges_at(fillet2, [
    (13.3, 0, 1.5),
    (78.3, 0, 1.5),
    (78.3, -340, 1.5),
    (13.3, -340, 1.5),
]))
fillet3.Radius = 5

# Sketch on XY plane
sketch6 = body.newObject("Sketcher::SketchObject", "Sketch005")
sketch6.AttachmentSupport = (doc.getObject("XY_Plane"), [""])
sketch6.MapMode = "FlatFace"
sketch6.AttachmentOffset = App.Placement(App.Vector(0, 0, 3), App.Rotation())
sketch6.addGeometry(Part.Circle(App.Vector(228, -170, 0), App.Vector(0, 0, 1), 6), False)
sketch6.addConstraint(Sketcher.Constraint("DistanceY", 0, 3, -1, 1, Q("170 mm")))
sketch6.addConstraint(Sketcher.Constraint("Diameter", 0, Q("12.616246 mm")))
sketch6.addConstraint(Sketcher.Constraint("DistanceX", -1, 1, 0, 3, Q("228.308746 mm")))
pocket5 = body.newObject("PartDesign::Pocket", "Pocket004")
pocket5.Profile = sketch6
pocket5.Length = 10

# Sketch on XY plane
sketch7 = body.newObject("Sketcher::SketchObject", "Sketch006")
sketch7.AttachmentSupport = (doc.getObject("XY_Plane"), [""])
sketch7.MapMode = "FlatFace"
sketch7.AttachmentOffset = App.Placement(App.Vector(0, 0, 3), App.Rotation())
sketch7.addGeometry(Part.Circle(App.Vector(-149, -149.5, 0), App.Vector(0, 0, 1), 1.5), False)
sketch7.addGeometry(Part.Circle(App.Vector(-129, -149.5, 0), App.Vector(0, 0, 1), 1.5), False)
sketch7.addGeometry(Part.Circle(App.Vector(-149, -190.5, 0), App.Vector(0, 0, 1), 1.5), False)
sketch7.addGeometry(Part.Circle(App.Vector(-129, -190.5, 0), App.Vector(0, 0, 1), 1.5), False)
sketch7.addConstraint(Sketcher.Constraint("Equal", 0, 1))
sketch7.addConstraint(Sketcher.Constraint("Equal", 1, 2))
sketch7.addConstraint(Sketcher.Constraint("Equal", 2, 3))
sketch7.addConstraint(Sketcher.Constraint("Horizontal", 0, 3, 1, 3))
sketch7.addConstraint(Sketcher.Constraint("Horizontal", 2, 3, 3, 3))
sketch7.addConstraint(Sketcher.Constraint("Vertical", 0, 3, 2, 3))
sketch7.addConstraint(Sketcher.Constraint("Vertical", 1, 3, 3, 3))
sketch7.addConstraint(Sketcher.Constraint("Diameter", 0, Q("3 mm")))
sketch7.addConstraint(Sketcher.Constraint("DistanceX", 0, 3, -1, 1, Q("149 mm")))
sketch7.addConstraint(Sketcher.Constraint("DistanceX", 1, 3, -1, 1, Q("129 mm")))
sketch7.addConstraint(Sketcher.Constraint("DistanceY", 2, 3, 0, 3, Q("41 mm")))
sketch7.addConstraint(Sketcher.Constraint("DistanceY", 0, 3, -1, 1, Q("149.5 mm")))
pocket6 = body.newObject("PartDesign::Pocket", "Pocket005")
pocket6.Profile = sketch7
pocket6.Length = 10

# Sketch on XY plane
sketch8 = body.newObject("Sketcher::SketchObject", "Sketch007")
sketch8.AttachmentSupport = (doc.getObject("XY_Plane"), [""])
sketch8.MapMode = "FlatFace"
sketch8.AttachmentOffset = App.Placement(App.Vector(0, 0, 3), App.Rotation())
sketch8.addGeometry(Part.Circle(App.Vector(7.8, -114, 0), App.Vector(0, 0, 1), 1.5), False)
sketch8.addGeometry(Part.Circle(App.Vector(83.8, -114, 0), App.Vector(0, 0, 1), 1.5), False)
sketch8.addGeometry(Part.Circle(App.Vector(83.8, -226, 0), App.Vector(0, 0, 1), 1.5), False)
sketch8.addGeometry(Part.Circle(App.Vector(7.8, -226, 0), App.Vector(0, 0, 1), 1.5), False)
sketch8.addConstraint(Sketcher.Constraint("Equal", 0, 1))
sketch8.addConstraint(Sketcher.Constraint("Equal", 1, 2))
sketch8.addConstraint(Sketcher.Constraint("Equal", 2, 3))
sketch8.addConstraint(Sketcher.Constraint("Horizontal", 0, 3, 1, 3))
sketch8.addConstraint(Sketcher.Constraint("Horizontal", 2, 3, 3, 3))
sketch8.addConstraint(Sketcher.Constraint("Vertical", 1, 3, 2, 3))
sketch8.addConstraint(Sketcher.Constraint("Vertical", 0, 3, 3, 3))
sketch8.addConstraint(Sketcher.Constraint("Diameter", 0, Q("3 mm")))
sketch8.addConstraint(Sketcher.Constraint("DistanceY", 0, 3, -1, 1, Q("114 mm")))
sketch8.addConstraint(Sketcher.Constraint("DistanceY", 2, 3, -1, 1, Q("226 mm")))
sketch8.addConstraint(Sketcher.Constraint("DistanceX", 0, 3, 1, 3, Q("76 mm")))
sketch8.addConstraint(Sketcher.Constraint("DistanceX", -1, 1, 0, 3, Q("7.8 mm")))
pocket7 = body.newObject("PartDesign::Pocket", "Pocket006")
pocket7.Profile = sketch8
pocket7.Length = 10

# Sketch on XY plane
sketch9 = body.newObject("Sketcher::SketchObject", "Sketch008")
sketch9.AttachmentSupport = (doc.getObject("XY_Plane"), [""])
sketch9.MapMode = "FlatFace"
sketch9.AttachmentOffset = App.Placement(App.Vector(0, 0, 3), App.Rotation())
sketch9.addGeometry(Part.LineSegment(App.Vector(0, 63, 0), App.Vector(0, 0, 0)), False)
sketch9.addGeometry(Part.LineSegment(App.Vector(0, 0, 0), App.Vector(121, 0, 0)), False)
sketch9.addGeometry(Part.LineSegment(App.Vector(121, 0, 0), App.Vector(121, 63, 0)), False)
sketch9.addGeometry(Part.LineSegment(App.Vector(121, 63, 0), App.Vector(0, 63, 0)), False)
sketch9.addGeometry(Part.LineSegment(App.Vector(0, -340, 0), App.Vector(0, -407, 0)), False)
sketch9.addGeometry(Part.LineSegment(App.Vector(0, -407, 0), App.Vector(132, -407, 0)), False)
sketch9.addGeometry(Part.LineSegment(App.Vector(132, -407, 0), App.Vector(132, -340, 0)), False)
sketch9.addGeometry(Part.LineSegment(App.Vector(132, -340, 0), App.Vector(0, -340, 0)), False)
sketch9.addConstraint(Sketcher.Constraint("Coincident", 0, 2, 1, 1))
sketch9.addConstraint(Sketcher.Constraint("Coincident", 1, 2, 2, 1))
sketch9.addConstraint(Sketcher.Constraint("Coincident", 2, 2, 3, 1))
sketch9.addConstraint(Sketcher.Constraint("Coincident", 3, 2, 0, 1))
sketch9.addConstraint(Sketcher.Constraint("Coincident", 4, 2, 5, 1))
sketch9.addConstraint(Sketcher.Constraint("Coincident", 5, 2, 6, 1))
sketch9.addConstraint(Sketcher.Constraint("Coincident", 6, 2, 7, 1))
sketch9.addConstraint(Sketcher.Constraint("Coincident", 7, 2, 4, 1))
sketch9.addConstraint(Sketcher.Constraint("Vertical", 0))
sketch9.addConstraint(Sketcher.Constraint("Horizontal", 1))
sketch9.addConstraint(Sketcher.Constraint("Vertical", 2))
sketch9.addConstraint(Sketcher.Constraint("Horizontal", 3))
sketch9.addConstraint(Sketcher.Constraint("Vertical", 4))
sketch9.addConstraint(Sketcher.Constraint("Horizontal", 5))
sketch9.addConstraint(Sketcher.Constraint("Vertical", 6))
sketch9.addConstraint(Sketcher.Constraint("Horizontal", 7))
sketch9.addConstraint(Sketcher.Constraint("Coincident", 0, 2, -1, 1))
sketch9.addConstraint(Sketcher.Constraint("PointOnObject", 4, 2, -2))
sketch9.addConstraint(Sketcher.Constraint("DistanceY", 6, 2, -1, 1, Q("340 mm")))
sketch9.addConstraint(Sketcher.Constraint("DistanceY", 4, 2, 4, 1, Q("66.604432 mm")))
sketch9.addConstraint(Sketcher.Constraint("DistanceX", 1, 1, 1, 2, Q("120.586075 mm")))
sketch9.addConstraint(Sketcher.Constraint("DistanceX", 5, 1, 5, 2, Q("131.774283 mm")))
sketch9.addConstraint(Sketcher.Constraint("DistanceY", 0, 2, 0, 1, Q("63.347236 mm")))
pocket8 = body.newObject("PartDesign::Pocket", "Pocket007")
pocket8.Profile = sketch9
pocket8.Length = 10
doc.recompute()

fillet4 = body.newObject("PartDesign::Fillet", "Fillet003")
fillet4.Base = (pocket8, edges_at(pocket8, [
    (0, 0, 1.5),
    (91.6, 0, 1.5),
    (91.6, -340, 1.5),
    (0, -340, 1.5),
]))
fillet4.Radius = 10

doc.recompute()
